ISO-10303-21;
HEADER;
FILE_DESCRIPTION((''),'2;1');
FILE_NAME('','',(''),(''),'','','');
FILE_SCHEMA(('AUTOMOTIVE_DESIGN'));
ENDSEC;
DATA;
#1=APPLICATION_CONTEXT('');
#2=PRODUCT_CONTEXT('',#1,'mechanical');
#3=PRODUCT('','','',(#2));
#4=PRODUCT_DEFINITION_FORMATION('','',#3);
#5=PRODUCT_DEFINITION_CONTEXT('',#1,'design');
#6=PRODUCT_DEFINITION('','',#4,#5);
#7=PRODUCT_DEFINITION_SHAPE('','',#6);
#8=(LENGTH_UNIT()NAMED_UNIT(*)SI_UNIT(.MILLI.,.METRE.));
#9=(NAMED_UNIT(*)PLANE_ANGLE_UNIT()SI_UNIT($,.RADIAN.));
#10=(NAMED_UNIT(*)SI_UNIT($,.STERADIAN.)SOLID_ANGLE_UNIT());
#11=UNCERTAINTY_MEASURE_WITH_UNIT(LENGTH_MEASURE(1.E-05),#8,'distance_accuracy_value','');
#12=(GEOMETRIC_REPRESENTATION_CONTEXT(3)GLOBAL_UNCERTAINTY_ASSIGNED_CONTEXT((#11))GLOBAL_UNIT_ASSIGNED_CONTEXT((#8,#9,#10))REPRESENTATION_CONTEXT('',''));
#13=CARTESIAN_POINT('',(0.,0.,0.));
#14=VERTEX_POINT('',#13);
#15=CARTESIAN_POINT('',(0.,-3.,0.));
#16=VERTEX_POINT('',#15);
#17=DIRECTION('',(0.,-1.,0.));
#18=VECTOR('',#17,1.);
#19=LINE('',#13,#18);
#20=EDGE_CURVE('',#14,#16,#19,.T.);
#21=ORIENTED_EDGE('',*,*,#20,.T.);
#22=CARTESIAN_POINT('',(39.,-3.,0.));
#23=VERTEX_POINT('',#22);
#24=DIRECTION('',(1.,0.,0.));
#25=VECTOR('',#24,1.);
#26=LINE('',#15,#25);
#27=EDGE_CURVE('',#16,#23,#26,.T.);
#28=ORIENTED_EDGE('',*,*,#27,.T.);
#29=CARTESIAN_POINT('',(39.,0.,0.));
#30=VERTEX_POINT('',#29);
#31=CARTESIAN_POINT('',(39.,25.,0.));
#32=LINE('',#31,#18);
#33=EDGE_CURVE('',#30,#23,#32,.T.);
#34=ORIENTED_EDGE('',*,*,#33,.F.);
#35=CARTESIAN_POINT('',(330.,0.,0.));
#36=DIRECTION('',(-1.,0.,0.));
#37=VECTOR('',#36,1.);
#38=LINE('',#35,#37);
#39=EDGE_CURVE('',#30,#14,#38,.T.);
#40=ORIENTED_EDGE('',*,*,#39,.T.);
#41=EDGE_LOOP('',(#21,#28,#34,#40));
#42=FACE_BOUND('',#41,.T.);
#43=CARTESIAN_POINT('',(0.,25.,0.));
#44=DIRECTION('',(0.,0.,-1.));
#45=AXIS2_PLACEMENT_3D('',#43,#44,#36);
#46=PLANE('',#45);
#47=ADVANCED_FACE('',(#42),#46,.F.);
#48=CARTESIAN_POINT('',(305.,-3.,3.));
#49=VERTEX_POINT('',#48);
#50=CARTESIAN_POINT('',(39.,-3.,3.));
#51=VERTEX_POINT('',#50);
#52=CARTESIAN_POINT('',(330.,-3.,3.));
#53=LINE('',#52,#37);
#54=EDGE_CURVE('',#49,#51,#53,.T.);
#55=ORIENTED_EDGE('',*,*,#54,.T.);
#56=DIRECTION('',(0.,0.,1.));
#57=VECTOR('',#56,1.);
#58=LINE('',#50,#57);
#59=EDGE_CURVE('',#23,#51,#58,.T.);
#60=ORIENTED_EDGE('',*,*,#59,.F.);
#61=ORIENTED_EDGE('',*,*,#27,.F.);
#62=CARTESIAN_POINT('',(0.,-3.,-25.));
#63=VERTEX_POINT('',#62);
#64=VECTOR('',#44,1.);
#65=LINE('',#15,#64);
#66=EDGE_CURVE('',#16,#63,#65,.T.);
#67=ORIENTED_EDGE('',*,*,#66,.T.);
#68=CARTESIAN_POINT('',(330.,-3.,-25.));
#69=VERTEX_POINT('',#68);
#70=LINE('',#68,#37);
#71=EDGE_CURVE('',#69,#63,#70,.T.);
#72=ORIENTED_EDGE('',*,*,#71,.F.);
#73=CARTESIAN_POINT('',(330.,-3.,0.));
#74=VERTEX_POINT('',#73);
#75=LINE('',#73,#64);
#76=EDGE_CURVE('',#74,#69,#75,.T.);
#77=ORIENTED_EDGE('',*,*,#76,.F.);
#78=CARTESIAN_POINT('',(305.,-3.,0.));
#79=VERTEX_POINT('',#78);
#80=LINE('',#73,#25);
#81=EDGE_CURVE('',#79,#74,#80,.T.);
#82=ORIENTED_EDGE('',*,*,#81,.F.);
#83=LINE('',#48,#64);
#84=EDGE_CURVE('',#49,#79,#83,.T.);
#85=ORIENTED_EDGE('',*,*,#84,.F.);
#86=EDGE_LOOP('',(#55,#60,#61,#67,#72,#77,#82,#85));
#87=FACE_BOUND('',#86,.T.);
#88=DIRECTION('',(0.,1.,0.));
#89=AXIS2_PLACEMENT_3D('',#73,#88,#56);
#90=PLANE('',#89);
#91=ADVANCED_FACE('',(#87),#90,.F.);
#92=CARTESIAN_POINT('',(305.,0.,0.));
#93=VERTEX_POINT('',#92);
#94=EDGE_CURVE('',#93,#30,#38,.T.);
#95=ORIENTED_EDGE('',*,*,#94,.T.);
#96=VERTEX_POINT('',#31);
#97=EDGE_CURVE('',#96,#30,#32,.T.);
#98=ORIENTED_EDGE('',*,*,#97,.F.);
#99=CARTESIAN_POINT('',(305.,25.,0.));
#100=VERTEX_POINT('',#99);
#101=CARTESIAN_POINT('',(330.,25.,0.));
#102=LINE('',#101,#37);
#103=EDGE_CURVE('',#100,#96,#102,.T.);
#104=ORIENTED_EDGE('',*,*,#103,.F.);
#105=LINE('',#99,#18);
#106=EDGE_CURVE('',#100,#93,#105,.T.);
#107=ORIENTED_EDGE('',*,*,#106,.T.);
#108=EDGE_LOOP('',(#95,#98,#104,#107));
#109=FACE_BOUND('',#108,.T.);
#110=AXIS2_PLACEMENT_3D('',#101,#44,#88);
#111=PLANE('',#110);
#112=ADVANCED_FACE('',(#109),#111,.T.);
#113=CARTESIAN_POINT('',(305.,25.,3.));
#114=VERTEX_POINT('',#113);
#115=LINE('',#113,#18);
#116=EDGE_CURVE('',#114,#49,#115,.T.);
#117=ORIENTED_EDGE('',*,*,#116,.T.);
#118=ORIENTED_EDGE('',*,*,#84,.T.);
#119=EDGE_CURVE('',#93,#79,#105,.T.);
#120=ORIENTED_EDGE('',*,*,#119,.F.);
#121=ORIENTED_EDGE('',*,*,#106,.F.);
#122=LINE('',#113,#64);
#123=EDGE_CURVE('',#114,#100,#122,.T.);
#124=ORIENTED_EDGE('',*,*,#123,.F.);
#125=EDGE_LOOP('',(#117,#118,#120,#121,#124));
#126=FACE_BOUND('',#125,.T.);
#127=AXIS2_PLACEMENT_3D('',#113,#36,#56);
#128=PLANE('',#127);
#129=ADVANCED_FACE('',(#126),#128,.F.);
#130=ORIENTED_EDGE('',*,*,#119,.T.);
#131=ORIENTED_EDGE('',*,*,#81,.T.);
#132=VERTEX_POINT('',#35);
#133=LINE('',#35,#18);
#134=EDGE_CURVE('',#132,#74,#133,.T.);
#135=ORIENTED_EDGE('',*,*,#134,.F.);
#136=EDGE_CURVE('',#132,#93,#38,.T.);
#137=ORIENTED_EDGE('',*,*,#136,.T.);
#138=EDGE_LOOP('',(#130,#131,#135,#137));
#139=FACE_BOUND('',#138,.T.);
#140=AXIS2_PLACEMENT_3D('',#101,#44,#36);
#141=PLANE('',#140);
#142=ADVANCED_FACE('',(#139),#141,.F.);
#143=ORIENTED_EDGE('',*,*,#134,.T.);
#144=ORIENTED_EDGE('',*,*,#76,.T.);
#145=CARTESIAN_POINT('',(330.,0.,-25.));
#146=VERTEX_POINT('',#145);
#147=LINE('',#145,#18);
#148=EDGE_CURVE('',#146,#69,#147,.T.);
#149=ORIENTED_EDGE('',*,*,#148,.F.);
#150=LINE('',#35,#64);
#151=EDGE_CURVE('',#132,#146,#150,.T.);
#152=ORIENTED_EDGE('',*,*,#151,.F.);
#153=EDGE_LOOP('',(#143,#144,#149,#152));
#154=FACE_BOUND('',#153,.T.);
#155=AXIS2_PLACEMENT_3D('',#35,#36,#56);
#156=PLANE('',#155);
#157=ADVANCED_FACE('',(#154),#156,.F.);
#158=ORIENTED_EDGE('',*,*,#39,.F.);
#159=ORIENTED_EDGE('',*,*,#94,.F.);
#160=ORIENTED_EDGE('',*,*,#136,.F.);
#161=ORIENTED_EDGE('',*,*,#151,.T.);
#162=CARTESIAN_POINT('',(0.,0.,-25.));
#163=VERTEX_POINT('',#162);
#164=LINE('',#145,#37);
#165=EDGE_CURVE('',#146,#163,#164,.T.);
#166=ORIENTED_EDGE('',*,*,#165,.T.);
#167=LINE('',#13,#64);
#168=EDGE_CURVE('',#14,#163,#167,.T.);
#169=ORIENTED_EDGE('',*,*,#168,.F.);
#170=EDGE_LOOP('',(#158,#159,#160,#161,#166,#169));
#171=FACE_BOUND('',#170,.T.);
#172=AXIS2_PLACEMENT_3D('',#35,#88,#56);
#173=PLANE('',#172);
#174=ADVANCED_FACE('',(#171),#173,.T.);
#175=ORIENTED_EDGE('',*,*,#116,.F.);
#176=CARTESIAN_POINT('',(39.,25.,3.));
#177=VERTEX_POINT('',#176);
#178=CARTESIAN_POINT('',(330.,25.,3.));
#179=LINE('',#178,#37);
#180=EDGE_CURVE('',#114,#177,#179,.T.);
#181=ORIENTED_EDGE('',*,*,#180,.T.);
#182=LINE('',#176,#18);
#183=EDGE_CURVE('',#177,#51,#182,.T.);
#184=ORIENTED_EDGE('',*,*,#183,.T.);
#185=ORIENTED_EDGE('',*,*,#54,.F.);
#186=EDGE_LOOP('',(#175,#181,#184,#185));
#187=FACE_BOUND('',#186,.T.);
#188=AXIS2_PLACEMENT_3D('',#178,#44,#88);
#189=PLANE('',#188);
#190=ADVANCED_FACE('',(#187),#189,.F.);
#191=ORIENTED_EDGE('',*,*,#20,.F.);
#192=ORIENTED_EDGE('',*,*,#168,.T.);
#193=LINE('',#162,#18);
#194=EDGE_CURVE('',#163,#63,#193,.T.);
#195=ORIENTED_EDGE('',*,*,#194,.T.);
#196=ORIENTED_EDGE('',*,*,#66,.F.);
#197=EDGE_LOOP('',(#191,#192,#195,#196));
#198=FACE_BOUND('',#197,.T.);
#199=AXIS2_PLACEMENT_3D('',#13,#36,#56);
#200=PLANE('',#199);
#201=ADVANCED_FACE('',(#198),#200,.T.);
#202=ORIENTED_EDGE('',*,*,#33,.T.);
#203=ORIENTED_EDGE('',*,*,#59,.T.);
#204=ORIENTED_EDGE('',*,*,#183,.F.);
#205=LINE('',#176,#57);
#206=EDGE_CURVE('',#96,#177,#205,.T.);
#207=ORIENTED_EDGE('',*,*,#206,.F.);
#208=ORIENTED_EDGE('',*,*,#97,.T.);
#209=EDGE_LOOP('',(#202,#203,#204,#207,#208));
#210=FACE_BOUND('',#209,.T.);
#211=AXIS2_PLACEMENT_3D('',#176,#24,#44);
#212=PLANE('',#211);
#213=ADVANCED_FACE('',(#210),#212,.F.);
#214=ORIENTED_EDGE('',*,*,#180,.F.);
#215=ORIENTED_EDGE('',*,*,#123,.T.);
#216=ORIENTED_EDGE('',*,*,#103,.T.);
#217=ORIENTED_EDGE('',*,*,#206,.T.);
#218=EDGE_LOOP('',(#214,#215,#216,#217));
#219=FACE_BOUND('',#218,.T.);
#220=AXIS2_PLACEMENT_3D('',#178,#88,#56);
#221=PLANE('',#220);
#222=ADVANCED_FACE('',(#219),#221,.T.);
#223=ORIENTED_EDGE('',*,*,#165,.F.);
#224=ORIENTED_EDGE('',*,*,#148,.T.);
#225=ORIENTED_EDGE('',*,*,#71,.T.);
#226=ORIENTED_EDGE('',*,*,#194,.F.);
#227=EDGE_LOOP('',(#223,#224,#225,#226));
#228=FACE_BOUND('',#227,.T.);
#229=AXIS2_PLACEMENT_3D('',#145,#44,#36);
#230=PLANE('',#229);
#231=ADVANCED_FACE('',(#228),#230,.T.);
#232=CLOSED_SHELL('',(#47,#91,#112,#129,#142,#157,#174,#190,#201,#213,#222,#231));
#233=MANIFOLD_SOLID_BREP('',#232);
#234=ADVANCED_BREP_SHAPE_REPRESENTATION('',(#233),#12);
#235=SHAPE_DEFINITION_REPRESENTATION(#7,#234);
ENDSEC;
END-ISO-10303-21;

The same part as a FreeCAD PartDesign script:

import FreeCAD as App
import Part
import Sketcher

V = App.Vector


def add_polygon(sketch, points):
    """Adds a closed chain of lines whose ends are joined by coincident constraints."""
    first, n = sketch.GeometryCount, len(points)
    for a, b in zip(points, points[1:] + points[:1]):
        sketch.addGeometry(Part.LineSegment(App.Vector(*a, 0), App.Vector(*b, 0)), False)
    for i in range(n):
        sketch.addConstraint(Sketcher.Constraint("Coincident", first + i, 2, first + (i + 1) % n, 1))

doc = App.newDocument("Part")
body = doc.addObject("PartDesign::Body", "Body")

# Sketch on YZ plane
sketch1 = body.newObject("Sketcher::SketchObject", "Sketch")
sketch1.AttachmentSupport = (doc.getObject("YZ_Plane"), [""])
sketch1.MapMode = "FlatFace"
add_polygon(sketch1, [(0, 0), (25, 0), (25, 3), (-3, 3), (-3, -25), (0, -25)])  # lines 0-5
sketch1.addConstraint(Sketcher.Constraint("Horizontal", 0))
sketch1.addConstraint(Sketcher.Constraint("Vertical", 1))
sketch1.addConstraint(Sketcher.Constraint("Horizontal", 2))
sketch1.addConstraint(Sketcher.Constraint("Vertical", 3))
sketch1.addConstraint(Sketcher.Constraint("Horizontal", 4))
sketch1.addConstraint(Sketcher.Constraint("Vertical", 5))
sketch1.addConstraint(Sketcher.Constraint("Coincident", 5, 2, -1, 1))
sketch1.addConstraint(Sketcher.Constraint("Equal", 4, 1))
sketch1.addConstraint(Sketcher.Constraint("Equal", 2, 3))
sketch1.addConstraint(Sketcher.Constraint("DistanceX", 0, 1, 0, 2, 25.0))
sketch1.addConstraint(Sketcher.Constraint("DistanceX", 2, 2, 2, 1, 28.0))
pad1 = body.newObject("PartDesign::Pad", "Pad")
pad1.Profile = sketch1
pad1.Length = 330

# Sketch on XZ plane
sketch2 = body.newObject("Sketcher::SketchObject", "Sketch001")
sketch2.AttachmentSupport = (doc.getObject("XZ_Plane"), [""])
sketch2.MapMode = "FlatFace"
sketch2.AttachmentOffset = App.Placement(V(0, 0, 3), App.Rotation())
add_polygon(sketch2, [(0, 3), (0, 0), (39, 0), (39, 3)])  # lines 0-3
add_polygon(sketch2, [(305, 3), (305, 0), (330, 0), (330, 3)])  # lines 4-7
sketch2.addConstraint(Sketcher.Constraint("Vertical", 0))
sketch2.addConstraint(Sketcher.Constraint("Horizontal", 1))
sketch2.addConstraint(Sketcher.Constraint("Vertical", 2))
sketch2.addConstraint(Sketcher.Constraint("Horizontal", 3))
sketch2.addConstraint(Sketcher.Constraint("Vertical", 4))
sketch2.addConstraint(Sketcher.Constraint("Horizontal", 5))
sketch2.addConstraint(Sketcher.Constraint("Vertical", 6))
sketch2.addConstraint(Sketcher.Constraint("Horizontal", 7))
sketch2.addConstraint(Sketcher.Constraint("Coincident", 0, 2, -1, 1))
sketch2.addConstraint(Sketcher.Constraint("PointOnObject", 4, 2, -1))
sketch2.addConstraint(Sketcher.Constraint("Horizontal", 3, 2, 6, 2))
sketch2.addConstraint(Sketcher.Constraint("DistanceX", 1, 1, 1, 2, 39.0))
sketch2.addConstraint(Sketcher.Constraint("DistanceX", 5, 1, 5, 2, 25.0))
sketch2.addConstraint(Sketcher.Constraint("DistanceY", 0, 2, 0, 1, 3.0))
sketch2.addConstraint(Sketcher.Constraint("DistanceX", -1, 1, 4, 2, 305.0))
pocket1 = body.newObject("PartDesign::Pocket", "Pocket")
pocket1.Profile = sketch2
pocket1.Type = "ThroughAll"

doc.recompute()
